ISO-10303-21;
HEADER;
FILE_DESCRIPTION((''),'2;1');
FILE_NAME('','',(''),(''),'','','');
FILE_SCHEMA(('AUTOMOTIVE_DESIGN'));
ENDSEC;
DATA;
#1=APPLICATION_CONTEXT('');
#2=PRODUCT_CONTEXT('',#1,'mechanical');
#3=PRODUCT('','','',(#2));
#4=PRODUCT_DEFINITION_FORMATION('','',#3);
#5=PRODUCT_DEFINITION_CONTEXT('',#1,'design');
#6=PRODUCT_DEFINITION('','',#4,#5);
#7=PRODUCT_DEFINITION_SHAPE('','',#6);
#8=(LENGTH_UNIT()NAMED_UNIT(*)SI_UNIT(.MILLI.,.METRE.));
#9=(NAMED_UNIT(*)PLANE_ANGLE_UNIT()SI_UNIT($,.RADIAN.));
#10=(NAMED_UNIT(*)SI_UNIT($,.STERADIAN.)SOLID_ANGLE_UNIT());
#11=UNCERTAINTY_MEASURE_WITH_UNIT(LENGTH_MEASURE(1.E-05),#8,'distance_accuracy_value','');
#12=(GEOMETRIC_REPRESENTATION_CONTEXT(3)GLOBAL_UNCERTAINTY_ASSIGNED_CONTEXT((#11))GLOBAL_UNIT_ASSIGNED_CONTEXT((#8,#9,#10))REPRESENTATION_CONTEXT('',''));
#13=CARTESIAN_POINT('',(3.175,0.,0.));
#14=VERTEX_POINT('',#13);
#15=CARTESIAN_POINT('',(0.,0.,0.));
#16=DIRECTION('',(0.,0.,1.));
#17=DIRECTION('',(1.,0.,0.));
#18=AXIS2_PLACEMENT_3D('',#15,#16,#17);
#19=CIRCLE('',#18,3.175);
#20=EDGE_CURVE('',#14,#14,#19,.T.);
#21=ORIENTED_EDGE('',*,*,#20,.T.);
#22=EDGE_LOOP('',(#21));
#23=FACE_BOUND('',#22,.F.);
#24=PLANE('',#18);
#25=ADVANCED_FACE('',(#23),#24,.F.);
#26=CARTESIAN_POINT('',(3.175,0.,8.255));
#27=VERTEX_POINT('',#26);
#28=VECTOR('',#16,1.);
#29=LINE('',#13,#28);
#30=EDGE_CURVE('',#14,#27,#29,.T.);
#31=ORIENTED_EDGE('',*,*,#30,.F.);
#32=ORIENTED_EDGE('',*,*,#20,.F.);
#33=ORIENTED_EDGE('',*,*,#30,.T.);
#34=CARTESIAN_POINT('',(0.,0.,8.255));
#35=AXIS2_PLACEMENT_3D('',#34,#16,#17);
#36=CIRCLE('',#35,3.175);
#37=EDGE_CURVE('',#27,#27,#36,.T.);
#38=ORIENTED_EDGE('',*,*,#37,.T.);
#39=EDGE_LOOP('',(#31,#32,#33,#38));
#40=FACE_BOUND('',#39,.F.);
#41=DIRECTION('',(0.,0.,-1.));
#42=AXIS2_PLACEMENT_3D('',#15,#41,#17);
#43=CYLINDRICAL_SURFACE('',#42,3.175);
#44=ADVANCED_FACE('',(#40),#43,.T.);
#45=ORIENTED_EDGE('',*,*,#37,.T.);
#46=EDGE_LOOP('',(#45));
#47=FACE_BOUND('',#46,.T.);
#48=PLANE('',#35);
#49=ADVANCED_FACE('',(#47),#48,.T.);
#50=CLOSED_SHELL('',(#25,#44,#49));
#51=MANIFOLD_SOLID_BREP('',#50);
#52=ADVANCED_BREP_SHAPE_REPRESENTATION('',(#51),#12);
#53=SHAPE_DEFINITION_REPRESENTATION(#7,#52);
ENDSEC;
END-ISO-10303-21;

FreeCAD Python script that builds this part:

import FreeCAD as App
import Part
import Sketcher
from FreeCAD import Vector
Q = App.Units.Quantity

doc = App.newDocument("Part")
params = doc.addObject("Spreadsheet::Sheet", "Params")
for row, (alias, value) in enumerate([
    ("sketch1_diameter", "0.25 in"),
    ("pad1_length", "0.325 in"),
], start=1):
    params.set(f"A{row}", alias)
    params.set(f"B{row}", "=" + value)
    params.setAlias(f"B{row}", alias)

body = doc.addObject("PartDesign::Body", "Body")

sketch1 = doc.addObject("Sketcher::SketchObject", "Sketch")
body.addObject(sketch1)
sketch1.AttachmentSupport = (doc.XY_Plane, [""])
sketch1.MapMode = "FlatFace"
sketch1.addGeometry(Part.Circle(Vector(0, 0, 0), Vector(0, 0, 1), 3.2), False)
sketch1.addConstraint([
    Sketcher.Constraint("Coincident", 0, 3, -1, 1),
    Sketcher.Constraint("Diameter", 0, Q("0.25 in")),
])
sketch1.setExpression("Constraints[1]", "Params.sketch1_diameter")
pad1 = doc.addObject("PartDesign::Pad", "Pad")
body.addObject(pad1)
pad1.Profile = sketch1
pad1.setExpression("Length", "Params.pad1_length")

doc.recompute()
